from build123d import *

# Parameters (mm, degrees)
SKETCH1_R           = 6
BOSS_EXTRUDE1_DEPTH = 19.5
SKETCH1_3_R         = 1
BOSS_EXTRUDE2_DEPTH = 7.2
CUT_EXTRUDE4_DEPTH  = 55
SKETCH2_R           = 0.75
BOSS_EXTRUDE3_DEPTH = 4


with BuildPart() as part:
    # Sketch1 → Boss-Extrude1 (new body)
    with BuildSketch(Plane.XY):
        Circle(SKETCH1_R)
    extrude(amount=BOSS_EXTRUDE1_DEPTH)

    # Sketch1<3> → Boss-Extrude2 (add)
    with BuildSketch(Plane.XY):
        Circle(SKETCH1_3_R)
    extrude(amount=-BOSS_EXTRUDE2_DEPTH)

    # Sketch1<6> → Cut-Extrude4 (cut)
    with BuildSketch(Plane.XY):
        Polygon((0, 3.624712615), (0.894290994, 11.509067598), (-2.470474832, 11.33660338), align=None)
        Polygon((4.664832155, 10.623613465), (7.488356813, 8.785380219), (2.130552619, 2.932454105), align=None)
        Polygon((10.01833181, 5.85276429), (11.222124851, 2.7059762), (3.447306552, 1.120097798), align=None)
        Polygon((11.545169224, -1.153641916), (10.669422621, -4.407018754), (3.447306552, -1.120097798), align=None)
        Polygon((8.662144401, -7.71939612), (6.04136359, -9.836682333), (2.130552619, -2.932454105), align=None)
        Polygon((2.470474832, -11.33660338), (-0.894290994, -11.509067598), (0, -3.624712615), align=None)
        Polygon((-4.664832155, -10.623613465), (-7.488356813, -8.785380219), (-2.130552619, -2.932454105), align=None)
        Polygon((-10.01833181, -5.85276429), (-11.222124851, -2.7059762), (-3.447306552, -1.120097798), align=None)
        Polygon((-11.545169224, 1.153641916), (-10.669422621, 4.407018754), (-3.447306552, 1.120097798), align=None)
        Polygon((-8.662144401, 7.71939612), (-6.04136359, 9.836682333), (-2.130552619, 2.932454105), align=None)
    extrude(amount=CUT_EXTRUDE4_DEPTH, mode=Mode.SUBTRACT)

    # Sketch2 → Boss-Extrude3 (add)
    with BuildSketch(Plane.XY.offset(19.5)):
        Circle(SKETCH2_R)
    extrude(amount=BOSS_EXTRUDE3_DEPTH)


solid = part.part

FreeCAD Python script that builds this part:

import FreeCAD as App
import Part
import Sketcher

V = App.Vector


def add_polygon(sketch, points):
    """Adds a closed chain of lines whose ends are joined by coincident constraints."""
    first, n = sketch.GeometryCount, len(points)
    for a, b in zip(points, points[1:] + points[:1]):
        sketch.addGeometry(Part.LineSegment(App.Vector(*a, 0), App.Vector(*b, 0)), False)
    for i in range(n):
        sketch.addConstraint(Sketcher.Constraint("Coincident", first + i, 2, first + (i + 1) % n, 1))

doc = App.newDocument("Part")
body = doc.addObject("PartDesign::Body", "Body")

# Sketch on XY plane
sketch1 = body.newObject("Sketcher::SketchObject", "Sketch")
sketch1.AttachmentSupport = (doc.getObject("XY_Plane"), [""])
sketch1.MapMode = "FlatFace"
sketch1.addGeometry(Part.Circle(V(0, 0, 0), V(0, 0, 1), 6), False)
sketch1.addConstraint([
    Sketcher.Constraint("Coincident", 0, 3, -1, 1),
    Sketcher.Constraint("Diameter", 0, 12.0),
])
pad1 = body.newObject("PartDesign::Pad", "Pad")
pad1.Profile = sketch1
pad1.Length = 19.5

# Sketch on XY plane
sketch2 = body.newObject("Sketcher::SketchObject", "Sketch001")
sketch2.AttachmentSupport = (doc.getObject("XY_Plane"), [""])
sketch2.MapMode = "FlatFace"
sketch2.addGeometry(Part.Circle(V(0, 0, 0), V(0, 0, 1), 1), False)
sketch2.addConstraint([
    Sketcher.Constraint("Coincident", 0, 3, -1, 1),
    Sketcher.Constraint("Diameter", 0, 2.0),
])
pad2 = body.newObject("PartDesign::Pad", "Pad001")
pad2.Profile = sketch2
pad2.Length = 7.2
pad2.Reversed = True

# Sketch on XY plane
sketch3 = body.newObject("Sketcher::SketchObject", "Sketch002")
sketch3.AttachmentSupport = (doc.getObject("XY_Plane"), [""])
sketch3.MapMode = "FlatFace"
add_polygon(sketch3, [(0, 3.6), (0.9, 11.5), (-2.5, 11.3)])  # lines 0-2
add_polygon(sketch3, [(7.5, 8.8), (4.7, 10.6), (2.1, 2.9)])  # lines 3-5
add_polygon(sketch3, [(11.2, 2.7), (10, 5.9), (3.4, 1.1)])  # lines 6-8
add_polygon(sketch3, [(10.7, -4.4), (11.5, -1.2), (3.4, -1.1)])  # lines 9-11
add_polygon(sketch3, [(6, -9.8), (8.7, -7.7), (2.1, -2.9)])  # lines 12-14
add_polygon(sketch3, [(-0.9, -11.5), (2.5, -11.3), (0, -3.6)])  # lines 15-17
add_polygon(sketch3, [(-7.5, -8.8), (-4.7, -10.6), (-2.1, -2.9)])  # lines 18-20
add_polygon(sketch3, [(-11.2, -2.7), (-10, -5.9), (-3.4, -1.1)])  # lines 21-23
add_polygon(sketch3, [(-10.7, 4.4), (-11.5, 1.2), (-3.4, 1.1)])  # lines 24-26
add_polygon(sketch3, [(-6, 9.8), (-8.7, 7.7), (-2.1, 2.9)])  # lines 27-29
sketch3.addConstraint([
    Sketcher.Constraint("Symmetric", 1, 2, 15, 2, -1, 1),
    Sketcher.Constraint("Symmetric", 2, 2, 16, 2, -1, 1),
    Sketcher.Constraint("Symmetric", 0, 2, 17, 2, -1, 1),
    Sketcher.Constraint("Symmetric", 3, 2, 18, 2, -1, 1),
    Sketcher.Constraint("Symmetric", 4, 2, 19, 2, -1, 1),
    Sketcher.Constraint("Symmetric", 5, 2, 20, 2, -1, 1),
    Sketcher.Constraint("Symmetric", 6, 2, 21, 2, -1, 1),
    Sketcher.Constraint("Symmetric", 7, 2, 22, 2, -1, 1),
    Sketcher.Constraint("Symmetric", 8, 2, 23, 2, -1, 1),
    Sketcher.Constraint("Symmetric", 9, 2, 24, 2, -1, 1),
    Sketcher.Constraint("Symmetric", 10, 2, 25, 2, -1, 1),
    Sketcher.Constraint("Symmetric", 11, 2, 26, 2, -1, 1),
    Sketcher.Constraint("Symmetric", 12, 2, 27, 2, -1, 1),
    Sketcher.Constraint("Symmetric", 13, 2, 28, 2, -1, 1),
    Sketcher.Constraint("Symmetric", 14, 2, 29, 2, -1, 1),
    Sketcher.Constraint("Symmetric", 13, 2, 19, 2, -2),
    Sketcher.Constraint("Symmetric", 10, 2, 22, 2, -2),
    Sketcher.Constraint("PointOnObject", 2, 2, -2),
    Sketcher.Constraint("Equal", 1, 3),
    Sketcher.Constraint("Equal", 2, 4),
    Sketcher.Constraint("Equal", 0, 5),
    Sketcher.Constraint("Equal", 3, 6),
    Sketcher.Constraint("Equal", 4, 7),
    Sketcher.Constraint("Equal", 5, 8),
    Sketcher.Constraint("Equal", 6, 9),
    Sketcher.Constraint("Equal", 7, 10),
    Sketcher.Constraint("Equal", 8, 11),
    Sketcher.Constraint("Equal", 9, 12),
    Sketcher.Constraint("Equal", 10, 13),
    Sketcher.Constraint("Equal", 11, 14),
    Sketcher.Constraint("DistanceY", 2, 2, 3, 2, 6.998901),
    Sketcher.Constraint("DistanceX", 3, 2, 6, 2, 5.3535),
    Sketcher.Constraint("DistanceY", 12, 2, 10, 2, 6.599298),
    Sketcher.Constraint("Distance", 0, 7.934911),
    Sketcher.Constraint("DistanceX", -1, 1, 0, 2, 0.894291),
    Sketcher.Constraint("DistanceY", -1, 1, 5, 2, 8.78538),
    Sketcher.Constraint("DistanceX", -1, 1, 6, 2, 10.018332),
    Sketcher.Constraint("DistanceX", -1, 1, 9, 2, 11.545169),
    Sketcher.Constraint("DistanceY", 9, 2, -1, 1, 1.153642),
    Sketcher.Constraint("DistanceY", 11, 2, -1, 1, 4.407019),
    Sketcher.Constraint("DistanceY", 2, 2, 1, 2, 7.711891),
    Sketcher.Constraint("DistanceY", 4, 2, 2, 2, 0.692259),
    Sketcher.Constraint("DistanceX", 4, 2, 3, 2, 2.53428),
])
pocket1 = body.newObject("PartDesign::Pocket", "Pocket")
pocket1.Profile = sketch3
pocket1.Length = 55
pocket1.Reversed = True

# Sketch on XY plane
sketch4 = body.newObject("Sketcher::SketchObject", "Sketch003")
sketch4.AttachmentSupport = (doc.getObject("XY_Plane"), [""])
sketch4.MapMode = "FlatFace"
sketch4.AttachmentOffset = App.Placement(V(0, 0, 19.5), App.Rotation())
sketch4.addGeometry(Part.Circle(V(0, 0, 0), V(0, 0, 1), 0.8), False)
sketch4.addConstraint([
    Sketcher.Constraint("Coincident", 0, 3, -1, 1),
    Sketcher.Constraint("Diameter", 0, 1.5),
])
pad3 = body.newObject("PartDesign::Pad", "Pad002")
pad3.Profile = sketch4
pad3.Length = 4

doc.recompute()
